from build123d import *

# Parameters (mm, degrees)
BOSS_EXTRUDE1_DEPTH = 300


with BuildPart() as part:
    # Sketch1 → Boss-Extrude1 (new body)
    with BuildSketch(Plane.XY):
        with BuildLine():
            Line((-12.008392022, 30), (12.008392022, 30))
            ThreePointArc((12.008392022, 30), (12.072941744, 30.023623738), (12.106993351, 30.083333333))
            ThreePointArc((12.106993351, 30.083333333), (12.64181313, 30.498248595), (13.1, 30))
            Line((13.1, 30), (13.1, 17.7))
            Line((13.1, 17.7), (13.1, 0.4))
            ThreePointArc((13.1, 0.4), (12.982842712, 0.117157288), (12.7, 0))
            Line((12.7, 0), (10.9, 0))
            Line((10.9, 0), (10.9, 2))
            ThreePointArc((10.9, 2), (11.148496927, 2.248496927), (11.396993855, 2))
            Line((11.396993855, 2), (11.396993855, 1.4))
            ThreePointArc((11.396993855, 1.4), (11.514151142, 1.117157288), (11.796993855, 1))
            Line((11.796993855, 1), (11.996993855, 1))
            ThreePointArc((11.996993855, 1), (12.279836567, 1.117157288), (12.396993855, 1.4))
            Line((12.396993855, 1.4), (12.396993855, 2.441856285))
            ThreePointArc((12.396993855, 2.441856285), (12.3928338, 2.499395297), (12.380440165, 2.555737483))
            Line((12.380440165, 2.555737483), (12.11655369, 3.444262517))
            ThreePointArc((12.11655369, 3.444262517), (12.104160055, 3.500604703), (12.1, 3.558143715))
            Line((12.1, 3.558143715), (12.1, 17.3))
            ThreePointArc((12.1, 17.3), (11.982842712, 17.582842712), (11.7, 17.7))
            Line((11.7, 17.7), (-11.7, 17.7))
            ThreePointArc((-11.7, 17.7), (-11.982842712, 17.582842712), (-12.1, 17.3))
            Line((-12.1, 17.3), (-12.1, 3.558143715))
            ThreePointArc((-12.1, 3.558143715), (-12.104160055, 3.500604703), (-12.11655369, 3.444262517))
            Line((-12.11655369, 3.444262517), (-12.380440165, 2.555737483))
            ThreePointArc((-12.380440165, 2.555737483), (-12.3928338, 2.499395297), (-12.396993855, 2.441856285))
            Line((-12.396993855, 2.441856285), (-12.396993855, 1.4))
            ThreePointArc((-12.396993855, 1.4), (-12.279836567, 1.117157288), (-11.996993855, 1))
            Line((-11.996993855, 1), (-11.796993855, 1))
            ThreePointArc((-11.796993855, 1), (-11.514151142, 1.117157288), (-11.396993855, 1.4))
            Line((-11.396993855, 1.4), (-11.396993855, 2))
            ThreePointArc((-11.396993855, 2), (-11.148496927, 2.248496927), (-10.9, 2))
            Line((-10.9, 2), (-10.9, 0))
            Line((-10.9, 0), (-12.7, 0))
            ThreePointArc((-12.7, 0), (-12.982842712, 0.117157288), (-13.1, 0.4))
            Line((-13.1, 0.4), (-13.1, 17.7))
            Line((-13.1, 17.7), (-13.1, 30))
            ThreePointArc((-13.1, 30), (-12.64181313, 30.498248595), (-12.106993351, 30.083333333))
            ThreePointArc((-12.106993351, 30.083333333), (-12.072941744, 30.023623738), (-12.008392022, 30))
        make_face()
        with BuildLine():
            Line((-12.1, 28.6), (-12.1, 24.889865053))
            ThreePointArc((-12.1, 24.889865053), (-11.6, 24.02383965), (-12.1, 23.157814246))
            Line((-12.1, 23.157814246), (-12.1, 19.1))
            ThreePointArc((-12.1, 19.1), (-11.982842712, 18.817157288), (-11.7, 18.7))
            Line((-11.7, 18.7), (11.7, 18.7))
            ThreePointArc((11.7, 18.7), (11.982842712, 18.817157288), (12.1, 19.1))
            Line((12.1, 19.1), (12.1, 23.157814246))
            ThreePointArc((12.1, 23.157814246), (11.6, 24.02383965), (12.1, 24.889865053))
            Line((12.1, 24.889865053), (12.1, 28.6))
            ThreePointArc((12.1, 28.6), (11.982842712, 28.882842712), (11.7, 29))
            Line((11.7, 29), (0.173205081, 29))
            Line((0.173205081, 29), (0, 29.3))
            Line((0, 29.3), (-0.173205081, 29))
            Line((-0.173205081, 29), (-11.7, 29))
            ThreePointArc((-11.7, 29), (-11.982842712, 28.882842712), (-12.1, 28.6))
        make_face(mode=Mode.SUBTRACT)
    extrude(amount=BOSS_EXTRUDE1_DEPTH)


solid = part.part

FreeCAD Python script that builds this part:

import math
import FreeCAD as App
import Part
import Sketcher

V = App.Vector
Q = App.Units.Quantity

doc = App.newDocument("Part")
body = doc.addObject("PartDesign::Body", "Body")

# Sketch on XY plane
sketch1 = doc.addObject("Sketcher::SketchObject", "Sketch")
body.addObject(sketch1)
sketch1.AttachmentSupport = (doc.XY_Plane, [""])
sketch1.MapMode = "FlatFace"
sketch1.addGeometry(Part.LineSegment(V(12.008392, 30, 0), V(-12.008392, 30, 0)), False)
sketch1.addGeometry(Part.ArcOfCircle(Part.Circle(V(-12.008392, 30.1, 0), V(0, 0, 1), 0.1), math.radians(-170.405933), math.radians(-89.999999)), False)
sketch1.addGeometry(Part.ArcOfCircle(Part.Circle(V(-12.6, 30, 0), V(0, 0, 1), 0.5), math.radians(9.594068), math.radians(180)), False)
sketch1.addGeometry(Part.LineSegment(V(-13.1, 30, 0), V(-13.1, 0.4, 0)), False)
sketch1.addGeometry(Part.ArcOfCircle(Part.Circle(V(-12.7, 0.4, 0), V(0, 0, 1), 0.4), math.radians(-180), math.radians(-90)), False)
sketch1.addGeometry(Part.LineSegment(V(-12.7, 0, 0), V(-10.9, 0, 0)), False)
sketch1.addGeometry(Part.LineSegment(V(-10.9, 0, 0), V(-10.9, 2, 0)), False)
sketch1.addGeometry(Part.ArcOfCircle(Part.Circle(V(-11.148497, 2, 0), V(0, 0, 1), 0.248497), math.radians(0), math.radians(180)), False)
sketch1.addGeometry(Part.LineSegment(V(-11.396994, 2, 0), V(-11.396994, 1.4, 0)), False)
sketch1.addGeometry(Part.ArcOfCircle(Part.Circle(V(-11.796994, 1.4, 0), V(0, 0, 1), 0.4), math.radians(-90), math.radians(0)), False)
sketch1.addGeometry(Part.LineSegment(V(-11.796994, 1, 0), V(-11.996994, 1, 0)), False)
sketch1.addGeometry(Part.ArcOfCircle(Part.Circle(V(-11.996994, 1.4, 0), V(0, 0, 1), 0.4), math.radians(-180), math.radians(-90)), False)
sketch1.addGeometry(Part.LineSegment(V(-12.396994, 1.4, 0), V(-12.396994, 2.441856, 0)), False)
sketch1.addGeometry(Part.ArcOfCircle(Part.Circle(V(-11.996994, 2.441856, 0), V(0, 0, 1), 0.4), math.radians(163.458904), math.radians(180)), False)
sketch1.addGeometry(Part.LineSegment(V(-12.38044, 2.555737, 0), V(-12.116554, 3.444263, 0)), False)
sketch1.addGeometry(Part.ArcOfCircle(Part.Circle(V(-12.5, 3.558144, 0), V(0, 0, 1), 0.4), math.radians(-16.541096), math.radians(0)), False)
sketch1.addGeometry(Part.LineSegment(V(-12.1, 3.558144, 0), V(-12.1, 17.3, 0)), False)
sketch1.addGeometry(Part.ArcOfCircle(Part.Circle(V(-11.7, 17.3, 0), V(0, 0, 1), 0.4), math.radians(90), math.radians(180)), False)
sketch1.addGeometry(Part.LineSegment(V(-11.7, 17.7, 0), V(11.7, 17.7, 0)), False)
sketch1.addGeometry(Part.ArcOfCircle(Part.Circle(V(11.7, 17.3, 0), V(0, 0, 1), 0.4), math.radians(0), math.radians(90)), False)
sketch1.addGeometry(Part.LineSegment(V(12.1, 17.3, 0), V(12.1, 3.558144, 0)), False)
sketch1.addGeometry(Part.ArcOfCircle(Part.Circle(V(12.5, 3.558144, 0), V(0, 0, 1), 0.4), math.radians(180), math.radians(196.541096)), False)
sketch1.addGeometry(Part.LineSegment(V(12.116554, 3.444263, 0), V(12.38044, 2.555737, 0)), False)
sketch1.addGeometry(Part.ArcOfCircle(Part.Circle(V(11.996994, 2.441856, 0), V(0, 0, 1), 0.4), math.radians(0), math.radians(16.541096)), False)
sketch1.addGeometry(Part.LineSegment(V(12.396994, 2.441856, 0), V(12.396994, 1.4, 0)), False)
sketch1.addGeometry(Part.ArcOfCircle(Part.Circle(V(11.996994, 1.4, 0), V(0, 0, 1), 0.4), math.radians(-90), math.radians(0)), False)
sketch1.addGeometry(Part.LineSegment(V(11.996994, 1, 0), V(11.796994, 1, 0)), False)
sketch1.addGeometry(Part.ArcOfCircle(Part.Circle(V(11.796994, 1.4, 0), V(0, 0, 1), 0.4), math.radians(180), math.radians(270)), False)
sketch1.addGeometry(Part.LineSegment(V(11.396994, 1.4, 0), V(11.396994, 2, 0)), False)
sketch1.addGeometry(Part.ArcOfCircle(Part.Circle(V(11.148497, 2, 0), V(0, 0, 1), 0.248497), math.radians(0), math.radians(180)), False)
sketch1.addGeometry(Part.LineSegment(V(10.9, 2, 0), V(10.9, 0, 0)), False)
sketch1.addGeometry(Part.LineSegment(V(10.9, 0, 0), V(12.7, 0, 0)), False)
sketch1.addGeometry(Part.ArcOfCircle(Part.Circle(V(12.7, 0.4, 0), V(0, 0, 1), 0.4), math.radians(-90), math.radians(0)), False)
sketch1.addGeometry(Part.LineSegment(V(13.1, 0.4, 0), V(13.1, 30, 0)), False)
sketch1.addGeometry(Part.ArcOfCircle(Part.Circle(V(12.6, 30, 0), V(0, 0, 1), 0.5), math.radians(0), math.radians(170.405932)), False)
sketch1.addGeometry(Part.ArcOfCircle(Part.Circle(V(12.008392, 30.1, 0), V(0, 0, 1), 0.1), math.radians(-90.000001), math.radians(-9.594067)), False)
sketch1.addGeometry(Part.ArcOfCircle(Part.Circle(V(-11.7, 28.6, 0), V(0, 0, 1), 0.4), math.radians(90), math.radians(180)), False)
sketch1.addGeometry(Part.LineSegment(V(-11.7, 29, 0), V(-0.173205, 29, 0)), False)
sketch1.addGeometry(Part.LineSegment(V(-0.173205, 29, 0), V(0, 29.3, 0)), False)
sketch1.addGeometry(Part.LineSegment(V(0, 29.3, 0), V(0.173205, 29, 0)), False)
sketch1.addGeometry(Part.LineSegment(V(0.173205, 29, 0), V(11.7, 29, 0)), False)
sketch1.addGeometry(Part.ArcOfCircle(Part.Circle(V(11.7, 28.6, 0), V(0, 0, 1), 0.4), math.radians(0), math.radians(90)), False)
sketch1.addGeometry(Part.LineSegment(V(12.1, 28.6, 0), V(12.1, 24.889865, 0)), False)
sketch1.addGeometry(Part.ArcOfCircle(Part.Circle(V(12.6, 24.02384, 0), V(0, 0, 1), 1), math.radians(120), math.radians(240)), False)
sketch1.addGeometry(Part.LineSegment(V(12.1, 23.157814, 0), V(12.1, 19.1, 0)), False)
sketch1.addGeometry(Part.ArcOfCircle(Part.Circle(V(11.7, 19.1, 0), V(0, 0, 1), 0.4), math.radians(-90), math.radians(0)), False)
sketch1.addGeometry(Part.LineSegment(V(11.7, 18.7, 0), V(-11.7, 18.7, 0)), False)
sketch1.addGeometry(Part.ArcOfCircle(Part.Circle(V(-11.7, 19.1, 0), V(0, 0, 1), 0.4), math.radians(-180), math.radians(-90)), False)
sketch1.addGeometry(Part.LineSegment(V(-12.1, 19.1, 0), V(-12.1, 23.157814, 0)), False)
sketch1.addGeometry(Part.ArcOfCircle(Part.Circle(V(-12.6, 24.02384, 0), V(0, 0, 1), 1), math.radians(-60), math.radians(60)), False)
sketch1.addGeometry(Part.LineSegment(V(-12.1, 24.889865, 0), V(-12.1, 28.6, 0)), False)
sketch1.addConstraint(Sketcher.Constraint("Tangent", 0, 2, 1, 2))
sketch1.addConstraint(Sketcher.Constraint("Tangent", 1, 1, 2, 1))
sketch1.addConstraint(Sketcher.Constraint("Tangent", 2, 2, 3, 1))
sketch1.addConstraint(Sketcher.Constraint("Tangent", 3, 2, 4, 1))
sketch1.addConstraint(Sketcher.Constraint("Tangent", 4, 2, 5, 1))
sketch1.addConstraint(Sketcher.Constraint("Coincident", 5, 2, 6, 1))
sketch1.addConstraint(Sketcher.Constraint("Tangent", 6, 2, 7, 1))
sketch1.addConstraint(Sketcher.Constraint("Tangent", 7, 2, 8, 1))
sketch1.addConstraint(Sketcher.Constraint("Tangent", 8, 2, 9, 2))
sketch1.addConstraint(Sketcher.Constraint("Tangent", 9, 1, 10, 1))
sketch1.addConstraint(Sketcher.Constraint("Tangent", 10, 2, 11, 2))
sketch1.addConstraint(Sketcher.Constraint("Tangent", 11, 1, 12, 1))
sketch1.addConstraint(Sketcher.Constraint("Tangent", 12, 2, 13, 2))
sketch1.addConstraint(Sketcher.Constraint("Tangent", 13, 1, 14, 1))
sketch1.addConstraint(Sketcher.Constraint("Tangent", 14, 2, 15, 1))
sketch1.addConstraint(Sketcher.Constraint("Tangent", 15, 2, 16, 1))
sketch1.addConstraint(Sketcher.Constraint("Tangent", 16, 2, 17, 2))
sketch1.addConstraint(Sketcher.Constraint("Tangent", 17, 1, 18, 1))
sketch1.addConstraint(Sketcher.Constraint("Tangent", 18, 2, 19, 2))
sketch1.addConstraint(Sketcher.Constraint("Tangent", 19, 1, 20, 1))
sketch1.addConstraint(Sketcher.Constraint("Tangent", 20, 2, 21, 1))
sketch1.addConstraint(Sketcher.Constraint("Tangent", 21, 2, 22, 1))
sketch1.addConstraint(Sketcher.Constraint("Tangent", 22, 2, 23, 2))
sketch1.addConstraint(Sketcher.Constraint("Tangent", 23, 1, 24, 1))
sketch1.addConstraint(Sketcher.Constraint("Tangent", 24, 2, 25, 2))
sketch1.addConstraint(Sketcher.Constraint("Tangent", 25, 1, 26, 1))
sketch1.addConstraint(Sketcher.Constraint("Tangent", 26, 2, 27, 2))
sketch1.addConstraint(Sketcher.Constraint("Tangent", 27, 1, 28, 1))
sketch1.addConstraint(Sketcher.Constraint("Tangent", 28, 2, 29, 1))
sketch1.addConstraint(Sketcher.Constraint("Tangent", 29, 2, 30, 1))
sketch1.addConstraint(Sketcher.Constraint("Coincident", 30, 2, 31, 1))
sketch1.addConstraint(Sketcher.Constraint("Tangent", 31, 2, 32, 1))
sketch1.addConstraint(Sketcher.Constraint("Tangent", 32, 2, 33, 1))
sketch1.addConstraint(Sketcher.Constraint("Tangent", 33, 2, 34, 1))
sketch1.addConstraint(Sketcher.Constraint("Tangent", 34, 2, 35, 2))
sketch1.addConstraint(Sketcher.Constraint("Tangent", 35, 1, 0, 1))
sketch1.addConstraint(Sketcher.Constraint("Tangent", 36, 1, 37, 1))
sketch1.addConstraint(Sketcher.Constraint("Coincident", 37, 2, 38, 1))
sketch1.addConstraint(Sketcher.Constraint("Coincident", 38, 2, 39, 1))
sketch1.addConstraint(Sketcher.Constraint("Coincident", 39, 2, 40, 1))
sketch1.addConstraint(Sketcher.Constraint("Tangent", 40, 2, 41, 2))
sketch1.addConstraint(Sketcher.Constraint("Tangent", 41, 1, 42, 1))
sketch1.addConstraint(Sketcher.Constraint("Coincident", 42, 2, 43, 1))
sketch1.addConstraint(Sketcher.Constraint("Coincident", 43, 2, 44, 1))
sketch1.addConstraint(Sketcher.Constraint("Tangent", 44, 2, 45, 2))
sketch1.addConstraint(Sketcher.Constraint("Tangent", 45, 1, 46, 1))
sketch1.addConstraint(Sketcher.Constraint("Tangent", 46, 2, 47, 2))
sketch1.addConstraint(Sketcher.Constraint("Tangent", 47, 1, 48, 1))
sketch1.addConstraint(Sketcher.Constraint("Coincident", 48, 2, 49, 1))
sketch1.addConstraint(Sketcher.Constraint("Coincident", 49, 2, 50, 1))
sketch1.addConstraint(Sketcher.Constraint("Tangent", 50, 2, 36, 2))
sketch1.addConstraint(Sketcher.Constraint("Horizontal", 0))
sketch1.addConstraint(Sketcher.Constraint("Vertical", 3))
sketch1.addConstraint(Sketcher.Constraint("Horizontal", 5))
sketch1.addConstraint(Sketcher.Constraint("Vertical", 6))
sketch1.addConstraint(Sketcher.Constraint("Vertical", 8))
sketch1.addConstraint(Sketcher.Constraint("Horizontal", 10))
sketch1.addConstraint(Sketcher.Constraint("Vertical", 12))
sketch1.addConstraint(Sketcher.Constraint("Vertical", 16))
sketch1.addConstraint(Sketcher.Constraint("Horizontal", 18))
sketch1.addConstraint(Sketcher.Constraint("Vertical", 20))
sketch1.addConstraint(Sketcher.Constraint("Vertical", 24))
sketch1.addConstraint(Sketcher.Constraint("Horizontal", 26))
sketch1.addConstraint(Sketcher.Constraint("Vertical", 28))
sketch1.addConstraint(Sketcher.Constraint("Vertical", 30))
sketch1.addConstraint(Sketcher.Constraint("Horizontal", 31))
sketch1.addConstraint(Sketcher.Constraint("Vertical", 33))
sketch1.addConstraint(Sketcher.Constraint("Horizontal", 37))
sketch1.addConstraint(Sketcher.Constraint("Horizontal", 40))
sketch1.addConstraint(Sketcher.Constraint("Vertical", 42))
sketch1.addConstraint(Sketcher.Constraint("Vertical", 44))
sketch1.addConstraint(Sketcher.Constraint("Horizontal", 46))
sketch1.addConstraint(Sketcher.Constraint("Vertical", 48))
sketch1.addConstraint(Sketcher.Constraint("Vertical", 50))
sketch1.addConstraint(Sketcher.Constraint("Equal", 4, 9))
sketch1.addConstraint(Sketcher.Constraint("Equal", 9, 11))
sketch1.addConstraint(Sketcher.Constraint("Equal", 11, 13))
sketch1.addConstraint(Sketcher.Constraint("Equal", 13, 15))
sketch1.addConstraint(Sketcher.Constraint("Equal", 15, 17))
sketch1.addConstraint(Sketcher.Constraint("Equal", 17, 19))
sketch1.addConstraint(Sketcher.Constraint("Equal", 19, 21))
sketch1.addConstraint(Sketcher.Constraint("Equal", 21, 23))
sketch1.addConstraint(Sketcher.Constraint("Equal", 23, 25))
sketch1.addConstraint(Sketcher.Constraint("Equal", 25, 27))
sketch1.addConstraint(Sketcher.Constraint("Equal", 7, 29))
sketch1.addConstraint(Sketcher.Constraint("Equal", 27, 32))
sketch1.addConstraint(Sketcher.Constraint("Equal", 2, 34))
sketch1.addConstraint(Sketcher.Constraint("Equal", 1, 35))
sketch1.addConstraint(Sketcher.Constraint("Equal", 32, 36))
sketch1.addConstraint(Sketcher.Constraint("Equal", 36, 41))
sketch1.addConstraint(Sketcher.Constraint("Equal", 41, 45))
sketch1.addConstraint(Sketcher.Constraint("Equal", 45, 47))
sketch1.addConstraint(Sketcher.Constraint("Equal", 43, 49))
sketch1.addConstraint(Sketcher.Constraint("Symmetric", 5, 2, 30, 2, -1, 1))
sketch1.addConstraint(Sketcher.Constraint("Symmetric", 15, 3, 21, 3, -2))
sketch1.addConstraint(Sketcher.Constraint("Symmetric", 13, 3, 23, 3, -2))
sketch1.addConstraint(Sketcher.Constraint("Symmetric", 4, 3, 32, 3, -2))
sketch1.addConstraint(Sketcher.Constraint("Symmetric", 36, 3, 41, 3, -2))
sketch1.addConstraint(Sketcher.Constraint("Symmetric", 43, 3, 49, 3, -2))
sketch1.addConstraint(Sketcher.Constraint("PointOnObject", 38, 2, -2))
sketch1.addConstraint(Sketcher.Constraint("Horizontal", 11, 3, 25, 3))
sketch1.addConstraint(Sketcher.Constraint("Horizontal", 7, 3, 29, 3))
sketch1.addConstraint(Sketcher.Constraint("Horizontal", 2, 3, 34, 3))
sketch1.addConstraint(Sketcher.Constraint("Horizontal", 34, 3, 0, 2))
sketch1.addConstraint(Sketcher.Constraint("Horizontal", 43, 2, 48, 2))
sketch1.addConstraint(Sketcher.Constraint("Vertical", 17, 3, 36, 3))
sketch1.addConstraint(Sketcher.Constraint("Vertical", 34, 3, 43, 3))
sketch1.addConstraint(Sketcher.Constraint("Vertical", 41, 3, 45, 3))
sketch1.addConstraint(Sketcher.Constraint("Equal", 37, 40))
sketch1.addConstraint(Sketcher.Constraint("Radius", 43, 1.0))
sketch1.addConstraint(Sketcher.Constraint("Radius", 1, 0.1))
sketch1.addConstraint(Sketcher.Constraint("Radius", 2, 0.5))
sketch1.addConstraint(Sketcher.Constraint("Radius", 4, 0.4))
sketch1.addConstraint(Sketcher.Constraint("DistanceY", 6, 1, 6, 2, 2.0))
sketch1.addConstraint(Sketcher.Constraint("Angle", 38, Q("60 deg")))
sketch1.addConstraint(Sketcher.Constraint("DistanceX", 5, 1, 5, 2, 1.8))
sketch1.addConstraint(Sketcher.Constraint("DistanceX", 10, 2, 10, 1, 0.2))
sketch1.addConstraint(Sketcher.Constraint("DistanceX", 18, 1, 18, 2, 23.4))
sketch1.addConstraint(Sketcher.Constraint("DistanceY", 3, 2, 3, 1, 29.6))
sketch1.addConstraint(Sketcher.Constraint("DistanceY", 8, 2, 8, 1, 0.6))
sketch1.addConstraint(Sketcher.Constraint("DistanceY", -1, 1, 36, 1, 29.0))
sketch1.addConstraint(Sketcher.Constraint("DistanceX", 2, 3, -1, 1, 12.6))
sketch1.addConstraint(Sketcher.Constraint("DistanceY", -1, 1, 17, 3, 17.3))
sketch1.addConstraint(Sketcher.Constraint("DistanceY", -1, 1, 45, 3, 19.1))
sketch1.addConstraint(Sketcher.Constraint("DistanceY", -1, 1, 38, 2, 29.3))
sketch1.addConstraint(Sketcher.Constraint("Radius", 7, 0.248497))
sketch1.addConstraint(Sketcher.Constraint("DistanceY", 12, 1, 12, 2, 1.041856))
sketch1.addConstraint(Sketcher.Constraint("DistanceY", 16, 1, 16, 2, 13.741856))
sketch1.addConstraint(Sketcher.Constraint("DistanceY", 42, 2, 42, 1, 3.710135))
pad1 = doc.addObject("PartDesign::Pad", "Pad")
body.addObject(pad1)
pad1.Profile = sketch1
pad1.Length = 300

doc.recompute()
